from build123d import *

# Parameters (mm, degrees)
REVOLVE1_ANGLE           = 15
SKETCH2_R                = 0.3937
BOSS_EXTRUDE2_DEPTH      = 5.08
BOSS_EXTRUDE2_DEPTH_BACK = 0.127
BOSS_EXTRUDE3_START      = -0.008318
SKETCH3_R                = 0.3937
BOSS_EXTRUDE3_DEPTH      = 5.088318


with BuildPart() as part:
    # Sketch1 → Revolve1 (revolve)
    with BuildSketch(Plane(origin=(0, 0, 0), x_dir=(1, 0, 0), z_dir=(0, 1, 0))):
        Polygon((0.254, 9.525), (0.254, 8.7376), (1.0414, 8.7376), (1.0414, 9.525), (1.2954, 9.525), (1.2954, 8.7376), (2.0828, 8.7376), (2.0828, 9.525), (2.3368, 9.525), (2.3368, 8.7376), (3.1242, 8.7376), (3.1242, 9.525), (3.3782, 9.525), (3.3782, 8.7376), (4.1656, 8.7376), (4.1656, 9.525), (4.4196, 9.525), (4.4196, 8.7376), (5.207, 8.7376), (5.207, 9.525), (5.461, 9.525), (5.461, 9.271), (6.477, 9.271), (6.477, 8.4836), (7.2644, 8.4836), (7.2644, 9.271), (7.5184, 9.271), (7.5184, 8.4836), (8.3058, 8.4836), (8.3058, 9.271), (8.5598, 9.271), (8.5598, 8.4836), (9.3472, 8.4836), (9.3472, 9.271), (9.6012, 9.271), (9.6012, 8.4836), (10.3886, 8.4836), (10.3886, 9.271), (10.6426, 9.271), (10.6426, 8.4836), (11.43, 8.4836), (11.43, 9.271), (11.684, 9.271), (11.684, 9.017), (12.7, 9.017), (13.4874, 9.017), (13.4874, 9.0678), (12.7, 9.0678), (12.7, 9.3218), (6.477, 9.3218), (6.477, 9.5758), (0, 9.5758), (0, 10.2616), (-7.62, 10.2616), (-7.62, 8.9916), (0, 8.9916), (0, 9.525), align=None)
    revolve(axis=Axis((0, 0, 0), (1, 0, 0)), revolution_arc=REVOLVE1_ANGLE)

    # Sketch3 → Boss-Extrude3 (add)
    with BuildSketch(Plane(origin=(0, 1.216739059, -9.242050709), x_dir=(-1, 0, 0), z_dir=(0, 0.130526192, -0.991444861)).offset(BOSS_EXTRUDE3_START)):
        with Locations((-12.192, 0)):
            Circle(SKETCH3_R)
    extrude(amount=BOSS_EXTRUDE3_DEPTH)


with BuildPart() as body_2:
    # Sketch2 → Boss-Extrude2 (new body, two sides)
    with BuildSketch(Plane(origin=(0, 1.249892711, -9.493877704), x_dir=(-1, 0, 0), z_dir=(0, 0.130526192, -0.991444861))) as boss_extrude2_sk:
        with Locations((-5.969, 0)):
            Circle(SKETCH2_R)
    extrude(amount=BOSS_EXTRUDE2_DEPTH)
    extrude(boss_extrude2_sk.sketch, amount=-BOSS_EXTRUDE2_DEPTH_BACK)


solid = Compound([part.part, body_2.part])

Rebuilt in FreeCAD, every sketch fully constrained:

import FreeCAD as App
import Part
import Sketcher
from FreeCAD import Vector
Q = App.Units.Quantity

doc = App.newDocument("Part")
params = doc.addObject("Spreadsheet::Sheet", "Params")
for row, (alias, value) in enumerate([
    ("sketch1_width", "0.3 in"),
    ("sketch1_width2", "0.01 in"),
    ("sketch1_width3", "0.04 in"),
    ("sketch1_height", "0.05 in"),
    ("sketch1_width4", "0.031 in"),
    ("revolution_angle", "15 deg"),
    ("sketch2_diameter", "0.031 in"),
    ("pad1_length", "5.088318 mm"),
    ("sketch3_diameter", "0.031 in"),
    ("pad2_length", "0.2 in"),
    ("pad2_length2", "0.005 in"),
], start=1):
    params.set(f"A{row}", alias)
    params.set(f"B{row}", "=" + value)
    params.setAlias(f"B{row}", alias)

body = doc.addObject("PartDesign::Body", "Body")

# Sketch on XZ plane
sketch1 = doc.addObject("Sketcher::SketchObject", "Sketch")
body.addObject(sketch1)
sketch1.AttachmentSupport = (doc.XZ_Plane, [""])
sketch1.MapMode = "FlatFace"
sketch1.addGeometry([
    Part.LineSegment(Vector(0.25, -9.53, 0), Vector(0.25, -8.74, 0)),  # 0
    Part.LineSegment(Vector(0.25, -8.74, 0), Vector(1.04, -8.74, 0)),  # 1
    Part.LineSegment(Vector(1.04, -8.74, 0), Vector(1.04, -9.53, 0)),  # 2
    Part.LineSegment(Vector(1.04, -9.53, 0), Vector(1.3, -9.53, 0)),  # 3
    Part.LineSegment(Vector(1.3, -9.53, 0), Vector(1.3, -8.74, 0)),  # 4
    Part.LineSegment(Vector(1.3, -8.74, 0), Vector(2.08, -8.74, 0)),  # 5
    Part.LineSegment(Vector(2.08, -8.74, 0), Vector(2.08, -9.53, 0)),  # 6
    Part.LineSegment(Vector(2.08, -9.53, 0), Vector(2.34, -9.53, 0)),  # 7
    Part.LineSegment(Vector(2.34, -9.53, 0), Vector(2.34, -8.74, 0)),  # 8
    Part.LineSegment(Vector(2.34, -8.74, 0), Vector(3.12, -8.74, 0)),  # 9
    Part.LineSegment(Vector(3.12, -8.74, 0), Vector(3.12, -9.53, 0)),  # 10
    Part.LineSegment(Vector(3.12, -9.53, 0), Vector(3.38, -9.53, 0)),  # 11
    Part.LineSegment(Vector(3.38, -9.53, 0), Vector(3.38, -8.74, 0)),  # 12
    Part.LineSegment(Vector(3.38, -8.74, 0), Vector(4.17, -8.74, 0)),  # 13
    Part.LineSegment(Vector(4.17, -8.74, 0), Vector(4.17, -9.53, 0)),  # 14
    Part.LineSegment(Vector(4.17, -9.53, 0), Vector(4.42, -9.53, 0)),  # 15
    Part.LineSegment(Vector(4.42, -9.53, 0), Vector(4.42, -8.74, 0)),  # 16
    Part.LineSegment(Vector(4.42, -8.74, 0), Vector(5.21, -8.74, 0)),  # 17
    Part.LineSegment(Vector(5.21, -8.74, 0), Vector(5.21, -9.53, 0)),  # 18
    Part.LineSegment(Vector(5.21, -9.53, 0), Vector(5.46, -9.53, 0)),  # 19
    Part.LineSegment(Vector(5.46, -9.53, 0), Vector(5.46, -9.27, 0)),  # 20
    Part.LineSegment(Vector(5.46, -9.27, 0), Vector(6.48, -9.27, 0)),  # 21
    Part.LineSegment(Vector(6.48, -9.27, 0), Vector(6.48, -8.48, 0)),  # 22
    Part.LineSegment(Vector(6.48, -8.48, 0), Vector(7.26, -8.48, 0)),  # 23
    Part.LineSegment(Vector(7.26, -8.48, 0), Vector(7.26, -9.27, 0)),  # 24
    Part.LineSegment(Vector(7.26, -9.27, 0), Vector(7.52, -9.27, 0)),  # 25
    Part.LineSegment(Vector(7.52, -9.27, 0), Vector(7.52, -8.48, 0)),  # 26
    Part.LineSegment(Vector(7.52, -8.48, 0), Vector(8.31, -8.48, 0)),  # 27
    Part.LineSegment(Vector(8.31, -8.48, 0), Vector(8.31, -9.27, 0)),  # 28
    Part.LineSegment(Vector(8.31, -9.27, 0), Vector(8.56, -9.27, 0)),  # 29
    Part.LineSegment(Vector(8.56, -9.27, 0), Vector(8.56, -8.48, 0)),  # 30
    Part.LineSegment(Vector(8.56, -8.48, 0), Vector(9.35, -8.48, 0)),  # 31
    Part.LineSegment(Vector(9.35, -8.48, 0), Vector(9.35, -9.27, 0)),  # 32
    Part.LineSegment(Vector(9.35, -9.27, 0), Vector(9.6, -9.27, 0)),  # 33
    Part.LineSegment(Vector(9.6, -9.27, 0), Vector(9.6, -8.48, 0)),  # 34
    Part.LineSegment(Vector(9.6, -8.48, 0), Vector(10.39, -8.48, 0)),  # 35
    Part.LineSegment(Vector(10.39, -8.48, 0), Vector(10.39, -9.27, 0)),  # 36
    Part.LineSegment(Vector(10.39, -9.27, 0), Vector(10.64, -9.27, 0)),  # 37
    Part.LineSegment(Vector(10.64, -9.27, 0), Vector(10.64, -8.48, 0)),  # 38
    Part.LineSegment(Vector(10.64, -8.48, 0), Vector(11.43, -8.48, 0)),  # 39
    Part.LineSegment(Vector(11.43, -8.48, 0), Vector(11.43, -9.27, 0)),  # 40
    Part.LineSegment(Vector(11.43, -9.27, 0), Vector(11.68, -9.27, 0)),  # 41
    Part.LineSegment(Vector(11.68, -9.27, 0), Vector(11.68, -9.02, 0)),  # 42
    Part.LineSegment(Vector(11.68, -9.02, 0), Vector(13.49, -9.02, 0)),  # 43
    Part.LineSegment(Vector(13.49, -9.02, 0), Vector(13.49, -9.07, 0)),  # 44
    Part.LineSegment(Vector(13.49, -9.07, 0), Vector(12.7, -9.07, 0)),  # 45
    Part.LineSegment(Vector(12.7, -9.07, 0), Vector(12.7, -9.32, 0)),  # 46
    Part.LineSegment(Vector(12.7, -9.32, 0), Vector(6.48, -9.32, 0)),  # 47
    Part.LineSegment(Vector(6.48, -9.32, 0), Vector(6.48, -9.58, 0)),  # 48
    Part.LineSegment(Vector(6.48, -9.58, 0), Vector(0, -9.58, 0)),  # 49
    Part.LineSegment(Vector(0, -9.58, 0), Vector(0, -10.26, 0)),  # 50
    Part.LineSegment(Vector(0, -10.26, 0), Vector(-7.62, -10.26, 0)),  # 51
    Part.LineSegment(Vector(-7.62, -10.26, 0), Vector(-7.62, -8.99, 0)),  # 52
    Part.LineSegment(Vector(-7.62, -8.99, 0), Vector(0, -8.99, 0)),  # 53
    Part.LineSegment(Vector(0, -8.99, 0), Vector(0, -9.53, 0)),  # 54
    Part.LineSegment(Vector(0, -9.53, 0), Vector(0.25, -9.53, 0)),  # 55
], False)
sketch1.addConstraint([
    Sketcher.Constraint("Coincident", 0, 2, 1, 1),
    Sketcher.Constraint("Coincident", 1, 2, 2, 1),
    Sketcher.Constraint("Coincident", 2, 2, 3, 1),
    Sketcher.Constraint("Coincident", 3, 2, 4, 1),
    Sketcher.Constraint("Coincident", 4, 2, 5, 1),
    Sketcher.Constraint("Coincident", 5, 2, 6, 1),
    Sketcher.Constraint("Coincident", 6, 2, 7, 1),
    Sketcher.Constraint("Coincident", 7, 2, 8, 1),
    Sketcher.Constraint("Coincident", 8, 2, 9, 1),
    Sketcher.Constraint("Coincident", 9, 2, 10, 1),
    Sketcher.Constraint("Coincident", 10, 2, 11, 1),
    Sketcher.Constraint("Coincident", 11, 2, 12, 1),
    Sketcher.Constraint("Coincident", 12, 2, 13, 1),
    Sketcher.Constraint("Coincident", 13, 2, 14, 1),
    Sketcher.Constraint("Coincident", 14, 2, 15, 1),
    Sketcher.Constraint("Coincident", 15, 2, 16, 1),
    Sketcher.Constraint("Coincident", 16, 2, 17, 1),
    Sketcher.Constraint("Coincident", 17, 2, 18, 1),
    Sketcher.Constraint("Coincident", 18, 2, 19, 1),
    Sketcher.Constraint("Coincident", 19, 2, 20, 1),
    Sketcher.Constraint("Coincident", 20, 2, 21, 1),
    Sketcher.Constraint("Coincident", 21, 2, 22, 1),
    Sketcher.Constraint("Coincident", 22, 2, 23, 1),
    Sketcher.Constraint("Coincident", 23, 2, 24, 1),
    Sketcher.Constraint("Coincident", 24, 2, 25, 1),
    Sketcher.Constraint("Coincident", 25, 2, 26, 1),
    Sketcher.Constraint("Coincident", 26, 2, 27, 1),
    Sketcher.Constraint("Coincident", 27, 2, 28, 1),
    Sketcher.Constraint("Coincident", 28, 2, 29, 1),
    Sketcher.Constraint("Coincident", 29, 2, 30, 1),
    Sketcher.Constraint("Coincident", 30, 2, 31, 1),
    Sketcher.Constraint("Coincident", 31, 2, 32, 1),
    Sketcher.Constraint("Coincident", 32, 2, 33, 1),
    Sketcher.Constraint("Coincident", 33, 2, 34, 1),
    Sketcher.Constraint("Coincident", 34, 2, 35, 1),
    Sketcher.Constraint("Coincident", 35, 2, 36, 1),
    Sketcher.Constraint("Coincident", 36, 2, 37, 1),
    Sketcher.Constraint("Coincident", 37, 2, 38, 1),
    Sketcher.Constraint("Coincident", 38, 2, 39, 1),
    Sketcher.Constraint("Coincident", 39, 2, 40, 1),
    Sketcher.Constraint("Coincident", 40, 2, 41, 1),
    Sketcher.Constraint("Coincident", 41, 2, 42, 1),
    Sketcher.Constraint("Coincident", 42, 2, 43, 1),
    Sketcher.Constraint("Coincident", 43, 2, 44, 1),
    Sketcher.Constraint("Coincident", 44, 2, 45, 1),
    Sketcher.Constraint("Coincident", 45, 2, 46, 1),
    Sketcher.Constraint("Coincident", 46, 2, 47, 1),
    Sketcher.Constraint("Coincident", 47, 2, 48, 1),
    Sketcher.Constraint("Coincident", 48, 2, 49, 1),
    Sketcher.Constraint("Coincident", 49, 2, 50, 1),
    Sketcher.Constraint("Coincident", 50, 2, 51, 1),
    Sketcher.Constraint("Coincident", 51, 2, 52, 1),
    Sketcher.Constraint("Coincident", 52, 2, 53, 1),
    Sketcher.Constraint("Coincident", 53, 2, 54, 1),
    Sketcher.Constraint("Coincident", 54, 2, 55, 1),
    Sketcher.Constraint("Coincident", 55, 2, 0, 1),
    Sketcher.Constraint("Vertical", 0),
    Sketcher.Constraint("Horizontal", 1),
    Sketcher.Constraint("Vertical", 2),
    Sketcher.Constraint("Horizontal", 3),
    Sketcher.Constraint("Vertical", 4),
    Sketcher.Constraint("Horizontal", 5),
    Sketcher.Constraint("Vertical", 6),
    Sketcher.Constraint("Horizontal", 7),
    Sketcher.Constraint("Vertical", 8),
    Sketcher.Constraint("Horizontal", 9),
    Sketcher.Constraint("Vertical", 10),
    Sketcher.Constraint("Horizontal", 11),
    Sketcher.Constraint("Vertical", 12),
    Sketcher.Constraint("Horizontal", 13),
    Sketcher.Constraint("Vertical", 14),
    Sketcher.Constraint("Horizontal", 15),
    Sketcher.Constraint("Vertical", 16),
    Sketcher.Constraint("Horizontal", 17),
    Sketcher.Constraint("Vertical", 18),
    Sketcher.Constraint("Horizontal", 19),
    Sketcher.Constraint("Vertical", 20),
    Sketcher.Constraint("Horizontal", 21),
    Sketcher.Constraint("Vertical", 22),
    Sketcher.Constraint("Horizontal", 23),
    Sketcher.Constraint("Vertical", 24),
    Sketcher.Constraint("Horizontal", 25),
    Sketcher.Constraint("Vertical", 26),
    Sketcher.Constraint("Horizontal", 27),
    Sketcher.Constraint("Vertical", 28),
    Sketcher.Constraint("Horizontal", 29),
    Sketcher.Constraint("Vertical", 30),
    Sketcher.Constraint("Horizontal", 31),
    Sketcher.Constraint("Vertical", 32),
    Sketcher.Constraint("Horizontal", 33),
    Sketcher.Constraint("Vertical", 34),
    Sketcher.Constraint("Horizontal", 35),
    Sketcher.Constraint("Vertical", 36),
    Sketcher.Constraint("Horizontal", 37),
    Sketcher.Constraint("Vertical", 38),
    Sketcher.Constraint("Horizontal", 39),
    Sketcher.Constraint("Vertical", 40),
    Sketcher.Constraint("Horizontal", 41),
    Sketcher.Constraint("Vertical", 42),
    Sketcher.Constraint("Horizontal", 43),
    Sketcher.Constraint("Vertical", 44),
    Sketcher.Constraint("Horizontal", 45),
    Sketcher.Constraint("Vertical", 46),
    Sketcher.Constraint("Horizontal", 47),
    Sketcher.Constraint("Vertical", 48),
    Sketcher.Constraint("Horizontal", 49),
    Sketcher.Constraint("Vertical", 50),
    Sketcher.Constraint("Horizontal", 51),
    Sketcher.Constraint("Vertical", 52),
    Sketcher.Constraint("Horizontal", 53),
    Sketcher.Constraint("Vertical", 54),
    Sketcher.Constraint("Horizontal", 55),
    Sketcher.Constraint("PointOnObject", 49, 2, -2),
    Sketcher.Constraint("PointOnObject", 53, 2, -2),
    Sketcher.Constraint("Horizontal", 1, 2, 4, 2),
    Sketcher.Constraint("Horizontal", 3, 2, 6, 2),
    Sketcher.Constraint("Horizontal", 5, 2, 8, 2),
    Sketcher.Constraint("Horizontal", 7, 2, 10, 2),
    Sketcher.Constraint("Horizontal", 9, 2, 12, 2),
    Sketcher.Constraint("Horizontal", 11, 2, 14, 2),
    Sketcher.Constraint("Horizontal", 13, 2, 16, 2),
    Sketcher.Constraint("Horizontal", 15, 2, 18, 2),
    Sketcher.Constraint("Horizontal", 21, 2, 24, 2),
    Sketcher.Constraint("Horizontal", 23, 2, 26, 2),
    Sketcher.Constraint("Horizontal", 25, 2, 28, 2),
    Sketcher.Constraint("Horizontal", 27, 2, 30, 2),
    Sketcher.Constraint("Horizontal", 29, 2, 32, 2),
    Sketcher.Constraint("Horizontal", 31, 2, 34, 2),
    Sketcher.Constraint("Horizontal", 33, 2, 36, 2),
    Sketcher.Constraint("Horizontal", 35, 2, 38, 2),
    Sketcher.Constraint("Horizontal", 37, 2, 40, 2),
    Sketcher.Constraint("Horizontal", 19, 2, 54, 2),
    Sketcher.Constraint("Vertical", 22, 2, 47, 2),
    Sketcher.Constraint("Equal", 1, 5),
    Sketcher.Constraint("Equal", 3, 7),
    Sketcher.Constraint("Equal", 5, 9),
    Sketcher.Constraint("Equal", 7, 11),
    Sketcher.Constraint("Equal", 9, 13),
    Sketcher.Constraint("Equal", 11, 15),
    Sketcher.Constraint("Equal", 13, 17),
    Sketcher.Constraint("Equal", 15, 19),
    Sketcher.Constraint("Equal", 17, 23),
    Sketcher.Constraint("Equal", 19, 25),
    Sketcher.Constraint("Equal", 23, 27),
    Sketcher.Constraint("Equal", 25, 29),
    Sketcher.Constraint("Equal", 27, 31),
    Sketcher.Constraint("Equal", 29, 33),
    Sketcher.Constraint("Equal", 31, 35),
    Sketcher.Constraint("Equal", 33, 37),
    Sketcher.Constraint("Equal", 35, 39),
    Sketcher.Constraint("Equal", 37, 41),
    Sketcher.Constraint("Equal", 39, 45),
    Sketcher.Constraint("Equal", 41, 55),
    Sketcher.Constraint("Equal", 45, 0),
    Sketcher.Constraint("Equal", 55, 20),
    Sketcher.Constraint("Equal", 18, 22),
    Sketcher.Constraint("Equal", 20, 42),
    Sketcher.Constraint("Equal", 42, 46),
    Sketcher.Constraint("Equal", 46, 48),
    Sketcher.Constraint("DistanceX", 51, 2, 51, 1, Q("0.3 in")),
    Sketcher.Constraint("DistanceX", 3, 1, 3, 2, Q("0.01 in")),
    Sketcher.Constraint("DistanceX", 21, 1, 21, 2, Q("0.04 in")),
    Sketcher.Constraint("DistanceY", 52, 1, 52, 2, Q("0.05 in")),
    Sketcher.Constraint("DistanceX", -1, 1, 45, 2, Q("0.5 in")),
    Sketcher.Constraint("DistanceX", 1, 1, 1, 2, Q("0.031 in")),
    Sketcher.Constraint("DistanceY", 44, 2, 44, 1, Q("0.002 in")),
    Sketcher.Constraint("DistanceY", 50, 2, 50, 1, Q("0.027 in")),
    Sketcher.Constraint("DistanceY", 0, 2, -1, 1, Q("0.344 in")),
])
sketch1.setExpression("Constraints[159]", "Params.sketch1_width")
sketch1.setExpression("Constraints[160]", "Params.sketch1_width2")
sketch1.setExpression("Constraints[161]", "Params.sketch1_width3")
sketch1.setExpression("Constraints[162]", "Params.sketch1_height")
sketch1.setExpression("Constraints[164]", "Params.sketch1_width4")
revolution = doc.addObject("PartDesign::Revolution", "Revolution")
body.addObject(revolution)
revolution.Profile = sketch1
revolution.ReferenceAxis = (sketch1, ["H_Axis"])
revolution.setExpression("Angle", "Params.revolution_angle")

# Sketch on an angled plane
sketch2 = doc.addObject("Sketcher::SketchObject", "Sketch001")
body.addObject(sketch2)
sketch2.Placement = App.Placement(Vector(0, 1.215653, -9.233804), App.Rotation(Vector(-1, 0, 0), Vector(0, 0.991444861, 0.130526192), Vector(0, 0.130526192, -0.991444861), "ZXY"))
sketch2.addGeometry(Part.Circle(Vector(-12.19, 0, 0), Vector(0, 0, 1), 0.39), False)
sketch2.addConstraint([
    Sketcher.Constraint("PointOnObject", 0, 3, -1),
    Sketcher.Constraint("Diameter", 0, Q("0.031 in")),
    Sketcher.Constraint("DistanceX", 0, 3, -1, 1, Q("0.48 in")),
])
sketch2.setExpression("Constraints[1]", "Params.sketch2_diameter")
pad1 = doc.addObject("PartDesign::Pad", "Pad")
body.addObject(pad1)
pad1.Profile = sketch2
pad1.setExpression("Length", "Params.pad1_length")
body2 = doc.addObject("PartDesign::Body", "Body001")

# Sketch on an angled plane
sketch3 = doc.addObject("Sketcher::SketchObject", "Sketch002")
body2.addObject(sketch3)
sketch3.Placement = App.Placement(Vector(0, 1.249893, -9.493878), App.Rotation(Vector(-1, 0, 0), Vector(0, 0.991444861, 0.130526192), Vector(0, 0.130526192, -0.991444861), "ZXY"))
sketch3.addGeometry(Part.Circle(Vector(-5.97, 0, 0), Vector(0, 0, 1), 0.39), False)
sketch3.addConstraint([
    Sketcher.Constraint("PointOnObject", 0, 3, -1),
    Sketcher.Constraint("Diameter", 0, Q("0.031 in")),
    Sketcher.Constraint("DistanceX", 0, 3, -1, 1, Q("0.235 in")),
])
sketch3.setExpression("Constraints[1]", "Params.sketch3_diameter")
pad2 = doc.addObject("PartDesign::Pad", "Pad001")
body2.addObject(pad2)
pad2.Profile = sketch3
pad2.Type = "TwoLengths"
pad2.setExpression("Length", "Params.pad2_length")
pad2.setExpression("Length2", "Params.pad2_length2")

doc.recompute()
